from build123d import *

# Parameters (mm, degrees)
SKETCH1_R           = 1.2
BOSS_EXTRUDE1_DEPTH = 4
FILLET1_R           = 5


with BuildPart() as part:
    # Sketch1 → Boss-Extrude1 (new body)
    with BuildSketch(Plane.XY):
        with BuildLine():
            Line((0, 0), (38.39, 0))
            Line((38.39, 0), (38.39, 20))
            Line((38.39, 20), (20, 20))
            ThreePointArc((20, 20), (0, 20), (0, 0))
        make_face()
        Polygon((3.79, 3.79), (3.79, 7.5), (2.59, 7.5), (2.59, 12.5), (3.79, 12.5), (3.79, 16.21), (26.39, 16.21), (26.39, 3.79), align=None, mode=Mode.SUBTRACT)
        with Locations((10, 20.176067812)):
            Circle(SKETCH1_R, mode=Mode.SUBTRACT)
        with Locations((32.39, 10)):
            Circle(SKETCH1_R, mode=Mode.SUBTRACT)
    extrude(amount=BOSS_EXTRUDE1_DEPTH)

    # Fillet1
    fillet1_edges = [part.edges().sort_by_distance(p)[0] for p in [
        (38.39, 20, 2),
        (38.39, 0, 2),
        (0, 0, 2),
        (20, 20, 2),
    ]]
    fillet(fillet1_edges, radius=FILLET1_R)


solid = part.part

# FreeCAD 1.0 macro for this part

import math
import FreeCAD as App
import Part
import Sketcher
Q = App.Units.Quantity


def edges_at(feature, points):
    """Names of the edges that pass closest to the given points."""
    edges = feature.Shape.Edges
    near = lambda p: min(range(len(edges)), key=lambda i: edges[i].distToShape(Part.Vertex(*p))[0])
    return sorted({f"Edge{near(p) + 1}" for p in points})


def add_polygon(sketch, points):
    """Adds a closed chain of lines whose ends are joined by coincident constraints."""
    first, n = sketch.GeometryCount, len(points)
    for a, b in zip(points, points[1:] + points[:1]):
        sketch.addGeometry(Part.LineSegment(App.Vector(*a, 0), App.Vector(*b, 0)), False)
    for i in range(n):
        sketch.addConstraint(Sketcher.Constraint("Coincident", first + i, 2, first + (i + 1) % n, 1))

doc = App.newDocument("Part")
params = doc.addObject("Spreadsheet::Sheet", "Params")
for row, (alias, value) in enumerate([
    ("sketch1_diameter", "2.4 mm"),
    ("sketch1_height", "20 mm"),
    ("sketch1_height2", "5 mm"),
    ("sketch1_width", "22.6 mm"),
    ("sketch1_width2", "1.2 mm"),
    ("pad1_length", "4 mm"),
    ("fillet_radius", "5 mm"),
], start=1):
    params.set(f"A{row}", alias)
    params.set(f"B{row}", "=" + value)
    params.setAlias(f"B{row}", alias)

body = doc.addObject("PartDesign::Body", "Body")

# Sketch on XY plane
sketch1 = doc.addObject("Sketcher::SketchObject", "Sketch")
body.addObject(sketch1)
sketch1.AttachmentSupport = (doc.XY_Plane, [""])
sketch1.MapMode = "FlatFace"
sketch1.addGeometry(Part.LineSegment(App.Vector(0, 0, 0), App.Vector(38.39, 0, 0)), False)  # 0
sketch1.addGeometry(Part.LineSegment(App.Vector(38.39, 0, 0), App.Vector(38.39, 20, 0)), False)  # 1
sketch1.addGeometry(Part.LineSegment(App.Vector(38.39, 20, 0), App.Vector(20, 20, 0)), False)  # 2
sketch1.addGeometry(Part.ArcOfCircle(Part.Circle(App.Vector(10, 10, 0), App.Vector(0, 0, 1), 14.142136), math.radians(45), math.radians(225)), False)  # 3
add_polygon(sketch1, [(26.39, 3.79), (3.79, 3.79), (3.79, 7.5), (2.59, 7.5), (2.59, 12.5), (3.79, 12.5), (3.79, 16.21), (26.39, 16.21)])  # lines 4-11
sketch1.addGeometry(Part.Circle(App.Vector(32.39, 10, 0), App.Vector(0, 0, 1), 1.2), False)  # 12
sketch1.addGeometry(Part.Circle(App.Vector(10, 20.176068, 0), App.Vector(0, 0, 1), 1.2), False)  # 13
sketch1.addConstraint(Sketcher.Constraint("Coincident", 0, 2, 1, 1))
sketch1.addConstraint(Sketcher.Constraint("Coincident", 1, 2, 2, 1))
sketch1.addConstraint(Sketcher.Constraint("Coincident", 2, 2, 3, 1))
sketch1.addConstraint(Sketcher.Constraint("Coincident", 3, 2, 0, 1))
sketch1.addConstraint(Sketcher.Constraint("Horizontal", 0))
sketch1.addConstraint(Sketcher.Constraint("Vertical", 1))
sketch1.addConstraint(Sketcher.Constraint("Horizontal", 2))
sketch1.addConstraint(Sketcher.Constraint("Horizontal", 4))
sketch1.addConstraint(Sketcher.Constraint("Vertical", 5))
sketch1.addConstraint(Sketcher.Constraint("Horizontal", 6))
sketch1.addConstraint(Sketcher.Constraint("Vertical", 7))
sketch1.addConstraint(Sketcher.Constraint("Horizontal", 8))
sketch1.addConstraint(Sketcher.Constraint("Vertical", 9))
sketch1.addConstraint(Sketcher.Constraint("Horizontal", 10))
sketch1.addConstraint(Sketcher.Constraint("Vertical", 11))
sketch1.addConstraint(Sketcher.Constraint("Coincident", 3, 2, -1, 1))
sketch1.addConstraint(Sketcher.Constraint("Equal", 12, 13))
sketch1.addConstraint(Sketcher.Constraint("Horizontal", 3, 3, 12, 3))
sketch1.addConstraint(Sketcher.Constraint("Vertical", 3, 3, 13, 3))
sketch1.addConstraint(Sketcher.Constraint("Vertical", 5, 2, 8, 2))
sketch1.addConstraint(Sketcher.Constraint("Equal", 5, 9))
sketch1.addConstraint(Sketcher.Constraint("Diameter", 12, Q("2.4 mm")))
sketch1.addConstraint(Sketcher.Constraint("DistanceY", 1, 1, 1, 2, Q("20 mm")))
sketch1.addConstraint(Sketcher.Constraint("DistanceY", 7, 1, 7, 2, Q("5 mm")))
sketch1.addConstraint(Sketcher.Constraint("DistanceX", 4, 2, 4, 1, Q("22.6 mm")))
sketch1.addConstraint(Sketcher.Constraint("DistanceX", 6, 2, 6, 1, Q("1.2 mm")))
sketch1.addConstraint(Sketcher.Constraint("DistanceX", -1, 1, 3, 3, Q("10 mm")))
sketch1.addConstraint(Sketcher.Constraint("DistanceY", -1, 1, 3, 3, Q("10 mm")))
sketch1.addConstraint(Sketcher.Constraint("DistanceX", 12, 3, 0, 2, Q("6 mm")))
sketch1.addConstraint(Sketcher.Constraint("DistanceX", 10, 2, 12, 3, Q("6 mm")))
sketch1.addConstraint(Sketcher.Constraint("DistanceX", 0, 1, 0, 2, Q("38.39 mm")))
sketch1.addConstraint(Sketcher.Constraint("DistanceY", 5, 1, 5, 2, Q("3.71 mm")))
sketch1.addConstraint(Sketcher.Constraint("DistanceY", -1, 1, 5, 2, Q("7.5 mm")))
sketch1.addConstraint(Sketcher.Constraint("DistanceY", -1, 1, 13, 3, Q("20.176068 mm")))
sketch1.setExpression("Constraints[29]", "Params.sketch1_diameter")
sketch1.setExpression("Constraints[30]", "Params.sketch1_height")
sketch1.setExpression("Constraints[31]", "Params.sketch1_height2")
sketch1.setExpression("Constraints[32]", "Params.sketch1_width")
sketch1.setExpression("Constraints[33]", "Params.sketch1_width2")
pad1 = doc.addObject("PartDesign::Pad", "Pad")
body.addObject(pad1)
pad1.Profile = sketch1
pad1.setExpression("Length", "Params.pad1_length")
doc.recompute()

fillet = doc.addObject("PartDesign::Fillet", "Fillet")
body.addObject(fillet)
fillet.Base = (pad1, edges_at(pad1, [
    (38.39, 20, 2),
    (38.39, 0, 2),
    (0, 0, 2),
    (20, 20, 2),
]))
fillet.setExpression("Radius", "Params.fillet_radius")

doc.recompute()
